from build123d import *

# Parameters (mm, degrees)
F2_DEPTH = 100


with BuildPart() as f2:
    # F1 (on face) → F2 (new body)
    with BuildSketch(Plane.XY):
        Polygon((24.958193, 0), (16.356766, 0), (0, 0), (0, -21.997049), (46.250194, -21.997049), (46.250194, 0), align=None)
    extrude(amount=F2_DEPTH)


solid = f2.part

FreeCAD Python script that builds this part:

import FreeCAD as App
import Part
import Sketcher
from FreeCAD import Vector
Q = App.Units.Quantity

doc = App.newDocument("Part")
body = doc.addObject("PartDesign::Body", "Body")

# Sketch on XY plane
sketch1 = body.newObject("Sketcher::SketchObject", "Sketch")
sketch1.AttachmentSupport = (doc.getObject("XY_Plane"), [""])
sketch1.MapMode = "FlatFace"
sketch1.addGeometry([
    Part.LineSegment(Vector(0, 0, 0), Vector(0, -22, 0)),
    Part.LineSegment(Vector(0, -22, 0), Vector(46, -22, 0)),
    Part.LineSegment(Vector(46, -22, 0), Vector(46, 0, 0)),
    Part.LineSegment(Vector(46, 0, 0), Vector(0, 0, 0)),
], False)
sketch1.addConstraint([
    Sketcher.Constraint("Coincident", 0, 2, 1, 1),
    Sketcher.Constraint("Coincident", 1, 2, 2, 1),
    Sketcher.Constraint("Coincident", 2, 2, 3, 1),
    Sketcher.Constraint("Coincident", 3, 2, 0, 1),
    Sketcher.Constraint("Vertical", 0),
    Sketcher.Constraint("Horizontal", 1),
    Sketcher.Constraint("Vertical", 2),
    Sketcher.Constraint("Horizontal", 3),
    Sketcher.Constraint("Coincident", 3, 2, -1, 1),
    Sketcher.Constraint("DistanceY", 0, 2, 0, 1, Q("21.997049 mm")),
    Sketcher.Constraint("DistanceX", 1, 1, 1, 2, Q("46.250194 mm")),
])
pad1 = body.newObject("PartDesign::Pad", "Pad")
pad1.Profile = sketch1
pad1.Length = 100

doc.recompute()
